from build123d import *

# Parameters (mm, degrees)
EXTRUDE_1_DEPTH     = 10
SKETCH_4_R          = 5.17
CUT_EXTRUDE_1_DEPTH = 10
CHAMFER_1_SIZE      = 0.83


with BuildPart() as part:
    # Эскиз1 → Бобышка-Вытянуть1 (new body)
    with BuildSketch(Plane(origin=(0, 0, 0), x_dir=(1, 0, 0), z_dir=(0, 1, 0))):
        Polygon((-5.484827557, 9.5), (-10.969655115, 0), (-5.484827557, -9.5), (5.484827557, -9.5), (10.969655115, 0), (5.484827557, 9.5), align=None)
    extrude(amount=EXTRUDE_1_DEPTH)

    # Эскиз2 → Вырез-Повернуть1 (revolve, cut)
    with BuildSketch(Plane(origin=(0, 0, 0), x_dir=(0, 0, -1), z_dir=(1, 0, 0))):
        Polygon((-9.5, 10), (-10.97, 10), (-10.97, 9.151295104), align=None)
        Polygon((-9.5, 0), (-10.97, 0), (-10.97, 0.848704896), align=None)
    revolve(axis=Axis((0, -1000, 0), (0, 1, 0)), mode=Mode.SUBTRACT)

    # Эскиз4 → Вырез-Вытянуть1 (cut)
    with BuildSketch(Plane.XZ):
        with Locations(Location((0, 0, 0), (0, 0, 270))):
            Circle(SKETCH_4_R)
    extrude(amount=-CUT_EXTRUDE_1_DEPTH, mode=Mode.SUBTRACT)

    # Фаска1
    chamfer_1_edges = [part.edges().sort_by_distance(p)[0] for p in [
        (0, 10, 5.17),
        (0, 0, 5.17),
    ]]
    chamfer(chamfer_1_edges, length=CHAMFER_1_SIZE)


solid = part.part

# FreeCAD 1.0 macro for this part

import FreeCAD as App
import Part
import Sketcher

V = App.Vector
Q = App.Units.Quantity


def edges_at(feature, points):
    """Names of the edges that pass closest to the given points."""
    edges = feature.Shape.Edges
    near = lambda p: min(range(len(edges)), key=lambda i: edges[i].distToShape(Part.Vertex(*p))[0])
    return sorted({f"Edge{near(p) + 1}" for p in points})


def add_polygon(sketch, points):
    """Adds a closed chain of lines whose ends are joined by coincident constraints."""
    first, n = sketch.GeometryCount, len(points)
    for a, b in zip(points, points[1:] + points[:1]):
        sketch.addGeometry(Part.LineSegment(App.Vector(*a, 0), App.Vector(*b, 0)), False)
    for i in range(n):
        sketch.addConstraint(Sketcher.Constraint("Coincident", first + i, 2, first + (i + 1) % n, 1))

doc = App.newDocument("Part")
params = doc.addObject("Spreadsheet::Sheet", "Params")
for row, (alias, value) in enumerate([
    ("pad1_length", "10 mm"),
    ("sketch2_height", "1.47 mm"),
    ("groove_angle", "360 deg"),
    ("sketch3_diameter", "10.34 mm"),
    ("pocket1_length", "10 mm"),
    ("chamfer_size", "0.83 mm"),
], start=1):
    params.set(f"A{row}", alias)
    params.set(f"B{row}", "=" + value)
    params.setAlias(f"B{row}", alias)

body = doc.addObject("PartDesign::Body", "Body")

# Sketch on XZ plane
sketch1 = body.newObject("Sketcher::SketchObject", "Sketch")
sketch1.AttachmentSupport = (doc.getObject("XZ_Plane"), [""])
sketch1.MapMode = "FlatFace"
add_polygon(sketch1, [(-5, -10), (-11, 0), (-5, 10), (5, 10), (11, 0), (5, -10)])  # lines 0-5
sketch1.addConstraint(Sketcher.Constraint("Horizontal", 2))
sketch1.addConstraint(Sketcher.Constraint("Horizontal", 5))
sketch1.addConstraint(Sketcher.Constraint("Symmetric", 0, 2, 3, 2, -1, 1))
sketch1.addConstraint(Sketcher.Constraint("Symmetric", 1, 2, 4, 2, -1, 1))
sketch1.addConstraint(Sketcher.Constraint("PointOnObject", 0, 2, -1))
sketch1.addConstraint(Sketcher.Constraint("Parallel", 0, 3))
sketch1.addConstraint(Sketcher.Constraint("Vertical", 2, 2, 4, 2))
sketch1.addConstraint(Sketcher.Constraint("Angle", 0, Q("120 deg")))
sketch1.addConstraint(Sketcher.Constraint("DistanceY", 4, 2, 2, 2, Q("19 mm")))
sketch1.addConstraint(Sketcher.Constraint("DistanceX", 2, 1, 2, 2, Q("10.969655 mm")))
pad1 = body.newObject("PartDesign::Pad", "Pad")
pad1.Profile = sketch1
pad1.setExpression("Length", "Params.pad1_length")
pad1.Reversed = True

# Sketch on YZ plane
sketch2 = body.newObject("Sketcher::SketchObject", "Sketch001")
sketch2.AttachmentSupport = (doc.getObject("YZ_Plane"), [""])
sketch2.MapMode = "FlatFace"
add_polygon(sketch2, [(10, 9.5), (10, 11), (9.2, 11)])  # lines 0-2
add_polygon(sketch2, [(0, 11), (0, 9.5), (0.8, 11)])  # lines 3-5
sketch2.addConstraint(Sketcher.Constraint("Vertical", 0))
sketch2.addConstraint(Sketcher.Constraint("Horizontal", 1))
sketch2.addConstraint(Sketcher.Constraint("Vertical", 3))
sketch2.addConstraint(Sketcher.Constraint("Horizontal", 5))
sketch2.addConstraint(Sketcher.Constraint("PointOnObject", 3, 2, -2))
sketch2.addConstraint(Sketcher.Constraint("Horizontal", 2, 2, 3, 2))
sketch2.addConstraint(Sketcher.Constraint("Horizontal", 1, 2, 4, 2))
sketch2.addConstraint(Sketcher.Constraint("Equal", 1, 5))
sketch2.addConstraint(Sketcher.Constraint("Angle", 2, Q("-60 deg")))
sketch2.addConstraint(Sketcher.Constraint("DistanceX", -1, 1, 0, 2, Q("10 mm")))
sketch2.addConstraint(Sketcher.Constraint("DistanceY", 0, 1, 0, 2, Q("1.47 mm")))
sketch2.addConstraint(Sketcher.Constraint("DistanceY", -1, 1, 2, 2, Q("9.5 mm")))
sketch2.setExpression("Constraints[16]", "Params.sketch2_height")
groove = body.newObject("PartDesign::Groove", "Groove")
groove.Profile = sketch2
groove.ReferenceAxis = (sketch2, ["H_Axis"])
groove.setExpression("Angle", "Params.groove_angle")

# Sketch on XZ plane
sketch3 = body.newObject("Sketcher::SketchObject", "Sketch002")
sketch3.AttachmentSupport = (doc.getObject("XZ_Plane"), [""])
sketch3.MapMode = "FlatFace"
sketch3.addGeometry(Part.Circle(V(0, 0, 0), V(0, 0, 1), 5), False)
sketch3.addConstraint(Sketcher.Constraint("Coincident", 0, 3, -1, 1))
sketch3.addConstraint(Sketcher.Constraint("Diameter", 0, Q("10.34 mm")))
sketch3.setExpression("Constraints[1]", "Params.sketch3_diameter")
pocket1 = body.newObject("PartDesign::Pocket", "Pocket")
pocket1.Profile = sketch3
pocket1.setExpression("Length", "Params.pocket1_length")
doc.recompute()

chamfer = body.newObject("PartDesign::Chamfer", "Chamfer")
chamfer.Base = (pocket1, edges_at(pocket1, [(0, 10, 5.17), (0, 0, 5.17)]))
chamfer.setExpression("Size", "Params.chamfer_size")

doc.recompute()
